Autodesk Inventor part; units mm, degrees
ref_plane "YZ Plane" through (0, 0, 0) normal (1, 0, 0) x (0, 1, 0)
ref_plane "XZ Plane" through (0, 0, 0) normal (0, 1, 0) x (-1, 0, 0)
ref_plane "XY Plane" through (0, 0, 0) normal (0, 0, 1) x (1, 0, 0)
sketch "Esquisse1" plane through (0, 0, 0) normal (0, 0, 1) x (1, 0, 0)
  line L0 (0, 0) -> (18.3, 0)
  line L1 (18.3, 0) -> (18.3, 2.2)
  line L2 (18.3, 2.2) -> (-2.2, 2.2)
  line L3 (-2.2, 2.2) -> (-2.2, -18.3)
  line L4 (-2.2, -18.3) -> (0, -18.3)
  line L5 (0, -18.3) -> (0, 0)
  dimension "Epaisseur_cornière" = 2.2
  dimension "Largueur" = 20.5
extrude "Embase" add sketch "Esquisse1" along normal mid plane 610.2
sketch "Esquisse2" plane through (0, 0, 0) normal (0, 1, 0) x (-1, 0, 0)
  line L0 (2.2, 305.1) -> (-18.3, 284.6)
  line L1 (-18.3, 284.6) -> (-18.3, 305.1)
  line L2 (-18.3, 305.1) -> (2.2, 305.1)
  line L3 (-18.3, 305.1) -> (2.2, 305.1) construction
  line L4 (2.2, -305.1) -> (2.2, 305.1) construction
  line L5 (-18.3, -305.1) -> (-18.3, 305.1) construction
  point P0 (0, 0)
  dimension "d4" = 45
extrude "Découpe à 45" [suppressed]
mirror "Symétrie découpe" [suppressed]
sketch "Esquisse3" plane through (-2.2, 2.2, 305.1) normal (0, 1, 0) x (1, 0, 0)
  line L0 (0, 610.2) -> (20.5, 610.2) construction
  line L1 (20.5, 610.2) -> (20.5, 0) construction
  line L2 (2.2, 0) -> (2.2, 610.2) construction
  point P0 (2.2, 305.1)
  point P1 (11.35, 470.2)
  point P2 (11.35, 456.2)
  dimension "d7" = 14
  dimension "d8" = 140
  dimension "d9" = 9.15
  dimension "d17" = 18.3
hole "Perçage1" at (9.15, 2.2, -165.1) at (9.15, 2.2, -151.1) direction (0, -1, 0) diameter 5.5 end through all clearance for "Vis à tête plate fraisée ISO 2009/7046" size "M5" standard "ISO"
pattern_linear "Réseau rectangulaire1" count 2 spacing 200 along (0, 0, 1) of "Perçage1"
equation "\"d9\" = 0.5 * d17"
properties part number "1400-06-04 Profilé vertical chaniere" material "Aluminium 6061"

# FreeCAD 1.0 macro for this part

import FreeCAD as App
import Part
import Sketcher
from FreeCAD import Vector
Q = App.Units.Quantity

doc = App.newDocument("Part")
body = doc.addObject("PartDesign::Body", "Body")

sketch1 = body.newObject("Sketcher::SketchObject", "Sketch")
sketch1.AttachmentSupport = (doc.getObject("XY_Plane"), [""])
sketch1.MapMode = "FlatFace"
sketch1.addGeometry([
    Part.LineSegment(Vector(0, -18.3, 0), Vector(0, 0, 0)),
    Part.LineSegment(Vector(0, 0, 0), Vector(18.3, 0, 0)),
    Part.LineSegment(Vector(18.3, 0, 0), Vector(18.3, 2.2, 0)),
    Part.LineSegment(Vector(18.3, 2.2, 0), Vector(-2.2, 2.2, 0)),
    Part.LineSegment(Vector(-2.2, 2.2, 0), Vector(-2.2, -18.3, 0)),
    Part.LineSegment(Vector(-2.2, -18.3, 0), Vector(0, -18.3, 0)),
], False)
sketch1.addConstraint([
    Sketcher.Constraint("Coincident", 0, 2, 1, 1),
    Sketcher.Constraint("Coincident", 1, 2, 2, 1),
    Sketcher.Constraint("Coincident", 2, 2, 3, 1),
    Sketcher.Constraint("Coincident", 3, 2, 4, 1),
    Sketcher.Constraint("Coincident", 4, 2, 5, 1),
    Sketcher.Constraint("Coincident", 5, 2, 0, 1),
    Sketcher.Constraint("Vertical", 0),
    Sketcher.Constraint("Horizontal", 1),
    Sketcher.Constraint("Vertical", 2),
    Sketcher.Constraint("Horizontal", 3),
    Sketcher.Constraint("Vertical", 4),
    Sketcher.Constraint("Horizontal", 5),
    Sketcher.Constraint("Coincident", 0, 2, -1, 1),
    Sketcher.Constraint("Equal", 1, 0),
    Sketcher.Constraint("Equal", 5, 2),
    Sketcher.Constraint("DistanceX", 3, 2, 3, 1, Q("20.5 mm")),
    Sketcher.Constraint("DistanceX", 5, 1, 5, 2, Q("2.2 mm")),
])
pad1 = body.newObject("PartDesign::Pad", "Pad")
pad1.Profile = sketch1
pad1.Length = 610.2
pad1.Midplane = True

sketch2 = body.newObject("Sketcher::SketchObject", "Sketch001")
sketch2.AttachmentSupport = (doc.getObject("XZ_Plane"), [""])
sketch2.MapMode = "FlatFace"
sketch2.AttachmentOffset = App.Placement(Vector(0, 0, -2.2), App.Rotation())
sketch2.addGeometry([
    Part.Circle(Vector(9.2, -165.1, 0), Vector(0, 0, 1), 2.8),
    Part.Circle(Vector(9.2, -151.1, 0), Vector(0, 0, 1), 2.8),
], False)
sketch2.addConstraint([
    Sketcher.Constraint("Equal", 0, 1),
    Sketcher.Constraint("Vertical", 0, 3, 1, 3),
    Sketcher.Constraint("Diameter", 0, Q("5.5 mm")),
    Sketcher.Constraint("DistanceY", 0, 3, 1, 3, Q("14 mm")),
    Sketcher.Constraint("DistanceY", 0, 3, -1, 1, Q("165.1 mm")),
    Sketcher.Constraint("DistanceX", -1, 1, 0, 3, Q("9.15 mm")),
])
doc.recompute()
hole = body.newObject("PartDesign::Hole", "Hole")
hole.Profile = sketch2
hole.ThreadType = "None"
hole.Diameter = 5.5
hole.DepthType = "ThroughAll"
hole.Reversed = True
doc.recompute()

linearpattern = body.newObject("PartDesign::LinearPattern", "LinearPattern")
linearpattern.Originals = [hole]
linearpattern.Direction = (doc.getObject("Z_Axis"), [""])
linearpattern.Mode = "offset"
linearpattern.Offset = 200
linearpattern.Occurrences = 2
body.Tip = linearpattern

doc.recompute()
